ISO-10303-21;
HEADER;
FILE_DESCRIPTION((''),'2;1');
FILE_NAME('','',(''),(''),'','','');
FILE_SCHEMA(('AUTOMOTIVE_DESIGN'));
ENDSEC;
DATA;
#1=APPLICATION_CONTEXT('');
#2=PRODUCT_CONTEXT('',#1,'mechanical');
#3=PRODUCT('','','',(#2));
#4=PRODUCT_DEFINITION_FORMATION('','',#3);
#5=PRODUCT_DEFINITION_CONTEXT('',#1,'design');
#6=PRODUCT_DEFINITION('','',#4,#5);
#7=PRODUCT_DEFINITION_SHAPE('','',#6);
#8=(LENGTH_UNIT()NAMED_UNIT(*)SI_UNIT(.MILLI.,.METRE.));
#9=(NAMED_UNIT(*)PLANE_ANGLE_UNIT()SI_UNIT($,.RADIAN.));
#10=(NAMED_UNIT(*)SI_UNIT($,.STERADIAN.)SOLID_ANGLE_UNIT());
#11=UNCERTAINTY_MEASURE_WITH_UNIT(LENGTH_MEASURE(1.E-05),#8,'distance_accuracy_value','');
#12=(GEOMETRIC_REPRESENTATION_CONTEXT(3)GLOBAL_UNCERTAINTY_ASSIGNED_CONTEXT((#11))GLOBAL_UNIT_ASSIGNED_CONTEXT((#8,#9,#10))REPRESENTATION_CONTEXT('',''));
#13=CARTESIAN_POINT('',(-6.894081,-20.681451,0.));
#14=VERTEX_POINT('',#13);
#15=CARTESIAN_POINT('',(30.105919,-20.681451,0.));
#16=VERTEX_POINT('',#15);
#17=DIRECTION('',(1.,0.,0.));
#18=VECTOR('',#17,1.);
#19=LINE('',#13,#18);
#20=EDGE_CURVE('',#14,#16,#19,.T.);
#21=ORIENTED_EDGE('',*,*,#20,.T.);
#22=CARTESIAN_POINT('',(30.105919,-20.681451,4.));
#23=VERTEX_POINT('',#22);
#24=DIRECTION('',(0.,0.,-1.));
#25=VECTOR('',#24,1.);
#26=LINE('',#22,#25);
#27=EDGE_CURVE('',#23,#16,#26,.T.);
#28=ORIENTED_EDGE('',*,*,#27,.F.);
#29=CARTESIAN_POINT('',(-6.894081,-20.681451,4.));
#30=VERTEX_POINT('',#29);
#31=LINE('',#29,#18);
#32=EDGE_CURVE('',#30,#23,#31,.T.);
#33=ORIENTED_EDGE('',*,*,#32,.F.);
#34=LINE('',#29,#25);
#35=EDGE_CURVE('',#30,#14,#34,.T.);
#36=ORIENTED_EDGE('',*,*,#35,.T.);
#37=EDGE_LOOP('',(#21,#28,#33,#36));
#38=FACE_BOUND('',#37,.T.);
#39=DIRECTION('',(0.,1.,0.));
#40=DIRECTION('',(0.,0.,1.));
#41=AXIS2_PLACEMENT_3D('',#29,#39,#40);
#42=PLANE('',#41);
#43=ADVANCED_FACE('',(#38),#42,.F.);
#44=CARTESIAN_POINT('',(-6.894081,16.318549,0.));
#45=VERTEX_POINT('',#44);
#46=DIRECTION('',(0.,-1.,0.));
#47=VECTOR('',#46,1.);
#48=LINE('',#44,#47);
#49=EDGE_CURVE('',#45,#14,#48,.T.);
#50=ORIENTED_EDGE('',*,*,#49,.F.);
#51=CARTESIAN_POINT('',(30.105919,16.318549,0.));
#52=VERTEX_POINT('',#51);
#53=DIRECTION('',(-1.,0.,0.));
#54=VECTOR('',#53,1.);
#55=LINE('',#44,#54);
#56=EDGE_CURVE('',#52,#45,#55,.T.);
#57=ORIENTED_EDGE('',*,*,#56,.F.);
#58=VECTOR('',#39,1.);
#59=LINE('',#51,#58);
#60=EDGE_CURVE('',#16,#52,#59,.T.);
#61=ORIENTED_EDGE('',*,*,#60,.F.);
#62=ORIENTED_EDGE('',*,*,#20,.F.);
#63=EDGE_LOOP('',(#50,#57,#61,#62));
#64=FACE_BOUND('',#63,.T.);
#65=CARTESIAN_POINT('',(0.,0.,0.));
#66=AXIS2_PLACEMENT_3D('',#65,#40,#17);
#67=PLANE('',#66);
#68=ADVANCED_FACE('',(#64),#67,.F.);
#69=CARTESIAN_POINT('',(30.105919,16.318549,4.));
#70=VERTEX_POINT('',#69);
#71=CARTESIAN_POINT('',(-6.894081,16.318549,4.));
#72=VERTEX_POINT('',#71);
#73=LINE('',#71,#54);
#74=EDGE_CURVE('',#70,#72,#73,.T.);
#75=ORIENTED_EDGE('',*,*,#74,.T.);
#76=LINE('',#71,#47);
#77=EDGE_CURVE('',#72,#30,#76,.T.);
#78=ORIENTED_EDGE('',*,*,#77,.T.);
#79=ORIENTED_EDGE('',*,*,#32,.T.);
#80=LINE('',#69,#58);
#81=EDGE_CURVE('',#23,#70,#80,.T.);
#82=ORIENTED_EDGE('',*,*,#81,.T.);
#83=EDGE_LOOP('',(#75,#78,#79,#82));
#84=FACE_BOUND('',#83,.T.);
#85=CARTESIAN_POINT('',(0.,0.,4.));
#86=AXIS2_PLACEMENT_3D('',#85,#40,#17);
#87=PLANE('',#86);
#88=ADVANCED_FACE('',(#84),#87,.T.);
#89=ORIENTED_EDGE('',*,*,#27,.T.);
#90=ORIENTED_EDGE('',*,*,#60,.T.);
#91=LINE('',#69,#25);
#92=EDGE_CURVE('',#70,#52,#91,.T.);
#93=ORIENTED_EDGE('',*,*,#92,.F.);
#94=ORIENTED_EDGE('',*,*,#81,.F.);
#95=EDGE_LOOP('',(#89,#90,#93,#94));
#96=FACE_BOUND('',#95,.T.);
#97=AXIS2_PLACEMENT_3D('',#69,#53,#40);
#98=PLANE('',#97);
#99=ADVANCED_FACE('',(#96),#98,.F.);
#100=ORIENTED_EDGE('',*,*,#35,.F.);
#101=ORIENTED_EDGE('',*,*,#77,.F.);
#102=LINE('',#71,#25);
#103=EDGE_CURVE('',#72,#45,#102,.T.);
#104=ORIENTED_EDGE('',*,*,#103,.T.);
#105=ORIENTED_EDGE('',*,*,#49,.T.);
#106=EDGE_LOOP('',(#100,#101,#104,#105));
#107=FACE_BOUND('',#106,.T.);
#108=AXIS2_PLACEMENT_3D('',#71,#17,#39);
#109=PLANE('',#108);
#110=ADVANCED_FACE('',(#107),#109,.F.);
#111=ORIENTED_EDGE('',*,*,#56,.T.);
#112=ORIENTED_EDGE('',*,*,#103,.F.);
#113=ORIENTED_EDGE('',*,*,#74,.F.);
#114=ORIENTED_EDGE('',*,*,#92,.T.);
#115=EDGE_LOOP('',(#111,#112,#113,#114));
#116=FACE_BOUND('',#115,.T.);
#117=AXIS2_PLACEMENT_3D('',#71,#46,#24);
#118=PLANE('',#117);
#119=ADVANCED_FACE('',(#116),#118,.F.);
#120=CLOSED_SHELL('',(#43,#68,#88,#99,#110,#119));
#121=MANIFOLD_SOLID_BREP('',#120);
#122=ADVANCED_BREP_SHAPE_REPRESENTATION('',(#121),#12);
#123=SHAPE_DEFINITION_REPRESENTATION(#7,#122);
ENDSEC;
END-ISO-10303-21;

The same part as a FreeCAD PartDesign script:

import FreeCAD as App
import Part
import Sketcher
Q = App.Units.Quantity


def add_polygon(sketch, points):
    """Adds a closed chain of lines whose ends are joined by coincident constraints."""
    first, n = sketch.GeometryCount, len(points)
    for a, b in zip(points, points[1:] + points[:1]):
        sketch.addGeometry(Part.LineSegment(App.Vector(*a, 0), App.Vector(*b, 0)), False)
    for i in range(n):
        sketch.addConstraint(Sketcher.Constraint("Coincident", first + i, 2, first + (i + 1) % n, 1))

doc = App.newDocument("Part")
body = doc.addObject("PartDesign::Body", "Body")

# Sketch on XY plane
sketch1 = body.newObject("Sketcher::SketchObject", "Sketch")
sketch1.AttachmentSupport = (doc.getObject("XY_Plane"), [""])
sketch1.MapMode = "FlatFace"
add_polygon(sketch1, [(-7, 16), (-7, -21), (30, -21), (30, 16)])  # lines 0-3
sketch1.addConstraint([
    Sketcher.Constraint("Vertical", 0),
    Sketcher.Constraint("Horizontal", 1),
    Sketcher.Constraint("Vertical", 2),
    Sketcher.Constraint("Horizontal", 3),
    Sketcher.Constraint("Equal", 3, 0),
    Sketcher.Constraint("DistanceX", 1, 1, 1, 2, Q("37 mm")),
    Sketcher.Constraint("DistanceX", 0, 2, -1, 1, Q("6.894081 mm")),
    Sketcher.Constraint("DistanceY", 0, 2, -1, 1, Q("20.681451 mm")),
])
pad1 = body.newObject("PartDesign::Pad", "Pad")
pad1.Profile = sketch1
pad1.Length = 4

doc.recompute()
